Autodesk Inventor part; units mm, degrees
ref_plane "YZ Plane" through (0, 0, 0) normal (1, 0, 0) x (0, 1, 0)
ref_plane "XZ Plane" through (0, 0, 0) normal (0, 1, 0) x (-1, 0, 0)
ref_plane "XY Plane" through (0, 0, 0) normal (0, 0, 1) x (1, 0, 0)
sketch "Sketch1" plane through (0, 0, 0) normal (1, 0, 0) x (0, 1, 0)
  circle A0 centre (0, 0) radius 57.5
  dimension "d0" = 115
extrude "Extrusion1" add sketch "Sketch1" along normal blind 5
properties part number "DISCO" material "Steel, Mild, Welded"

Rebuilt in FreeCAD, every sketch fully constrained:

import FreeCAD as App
import Part
import Sketcher
from FreeCAD import Vector
Q = App.Units.Quantity

doc = App.newDocument("Part")
body = doc.addObject("PartDesign::Body", "Body")

# Sketch on YZ plane
sketch1 = doc.addObject("Sketcher::SketchObject", "Sketch")
body.addObject(sketch1)
sketch1.AttachmentSupport = (doc.YZ_Plane, [""])
sketch1.MapMode = "FlatFace"
sketch1.addGeometry(Part.Circle(Vector(0, 0, 0), Vector(0, 0, 1), 58), False)
sketch1.addConstraint(Sketcher.Constraint("Coincident", 0, 3, -1, 1))
sketch1.addConstraint(Sketcher.Constraint("Diameter", 0, Q("115 mm")))
pad1 = doc.addObject("PartDesign::Pad", "Pad")
body.addObject(pad1)
pad1.Profile = sketch1
pad1.Length = 5

doc.recompute()
